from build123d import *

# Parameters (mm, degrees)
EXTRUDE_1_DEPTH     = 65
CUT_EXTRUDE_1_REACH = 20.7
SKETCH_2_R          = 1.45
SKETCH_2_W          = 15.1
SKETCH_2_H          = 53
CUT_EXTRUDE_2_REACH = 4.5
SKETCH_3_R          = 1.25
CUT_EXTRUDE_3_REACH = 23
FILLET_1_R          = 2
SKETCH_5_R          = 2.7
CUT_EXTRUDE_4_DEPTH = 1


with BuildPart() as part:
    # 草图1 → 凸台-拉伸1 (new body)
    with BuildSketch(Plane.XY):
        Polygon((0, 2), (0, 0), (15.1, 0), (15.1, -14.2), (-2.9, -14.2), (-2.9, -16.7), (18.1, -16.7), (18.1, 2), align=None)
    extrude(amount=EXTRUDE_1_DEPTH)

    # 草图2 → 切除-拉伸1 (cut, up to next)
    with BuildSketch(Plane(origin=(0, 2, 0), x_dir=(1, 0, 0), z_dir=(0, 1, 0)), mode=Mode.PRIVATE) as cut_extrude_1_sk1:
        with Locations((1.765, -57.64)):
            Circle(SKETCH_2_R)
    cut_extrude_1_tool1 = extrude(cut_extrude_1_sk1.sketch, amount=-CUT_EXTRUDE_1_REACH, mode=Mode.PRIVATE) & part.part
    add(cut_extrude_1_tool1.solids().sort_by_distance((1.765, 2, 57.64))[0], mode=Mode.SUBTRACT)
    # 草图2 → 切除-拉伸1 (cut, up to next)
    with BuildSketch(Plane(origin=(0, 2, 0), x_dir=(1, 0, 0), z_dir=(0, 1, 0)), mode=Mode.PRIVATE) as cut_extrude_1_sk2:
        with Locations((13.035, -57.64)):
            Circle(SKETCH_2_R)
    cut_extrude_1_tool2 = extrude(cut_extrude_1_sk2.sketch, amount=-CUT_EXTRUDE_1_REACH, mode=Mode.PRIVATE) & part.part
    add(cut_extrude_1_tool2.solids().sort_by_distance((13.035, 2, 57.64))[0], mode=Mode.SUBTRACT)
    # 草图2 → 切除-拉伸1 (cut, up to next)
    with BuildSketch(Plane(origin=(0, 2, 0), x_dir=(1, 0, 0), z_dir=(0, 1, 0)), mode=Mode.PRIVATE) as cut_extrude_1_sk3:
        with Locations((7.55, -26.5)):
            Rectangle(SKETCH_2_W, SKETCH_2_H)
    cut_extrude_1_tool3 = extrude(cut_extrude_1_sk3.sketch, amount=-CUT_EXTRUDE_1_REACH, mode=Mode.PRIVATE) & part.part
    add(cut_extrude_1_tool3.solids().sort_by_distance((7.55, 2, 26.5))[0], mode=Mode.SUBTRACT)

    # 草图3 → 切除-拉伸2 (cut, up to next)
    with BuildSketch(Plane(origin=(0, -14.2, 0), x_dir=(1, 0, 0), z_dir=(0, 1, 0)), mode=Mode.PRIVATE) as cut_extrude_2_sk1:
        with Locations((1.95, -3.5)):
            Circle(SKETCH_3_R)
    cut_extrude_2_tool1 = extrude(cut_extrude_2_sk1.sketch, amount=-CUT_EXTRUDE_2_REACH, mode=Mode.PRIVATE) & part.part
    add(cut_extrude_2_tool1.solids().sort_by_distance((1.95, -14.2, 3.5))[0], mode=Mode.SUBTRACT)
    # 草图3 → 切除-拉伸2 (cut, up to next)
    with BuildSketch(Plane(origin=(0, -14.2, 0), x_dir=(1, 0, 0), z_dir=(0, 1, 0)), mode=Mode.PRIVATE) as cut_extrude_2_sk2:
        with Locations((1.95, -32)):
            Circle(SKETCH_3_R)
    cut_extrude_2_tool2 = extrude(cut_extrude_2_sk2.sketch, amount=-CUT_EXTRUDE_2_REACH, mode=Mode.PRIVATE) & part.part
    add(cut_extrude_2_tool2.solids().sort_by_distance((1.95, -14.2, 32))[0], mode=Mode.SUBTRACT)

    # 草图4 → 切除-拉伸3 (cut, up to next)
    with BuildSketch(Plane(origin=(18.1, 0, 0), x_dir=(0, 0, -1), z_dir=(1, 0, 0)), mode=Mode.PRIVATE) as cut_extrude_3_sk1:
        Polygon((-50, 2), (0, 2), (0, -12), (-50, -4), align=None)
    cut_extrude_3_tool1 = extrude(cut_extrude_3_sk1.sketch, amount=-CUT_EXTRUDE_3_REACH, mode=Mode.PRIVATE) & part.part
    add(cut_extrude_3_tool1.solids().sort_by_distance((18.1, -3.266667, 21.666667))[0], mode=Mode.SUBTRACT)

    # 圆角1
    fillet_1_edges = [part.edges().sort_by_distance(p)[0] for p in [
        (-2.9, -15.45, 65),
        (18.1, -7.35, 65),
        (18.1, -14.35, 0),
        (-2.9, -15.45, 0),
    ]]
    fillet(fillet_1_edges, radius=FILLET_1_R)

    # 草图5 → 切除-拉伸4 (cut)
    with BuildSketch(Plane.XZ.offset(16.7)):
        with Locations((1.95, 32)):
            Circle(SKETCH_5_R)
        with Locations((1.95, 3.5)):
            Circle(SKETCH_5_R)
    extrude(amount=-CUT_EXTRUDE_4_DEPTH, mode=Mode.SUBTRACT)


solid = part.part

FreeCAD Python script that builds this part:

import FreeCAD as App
import Part
import Sketcher
from FreeCAD import Vector


def edges_at(feature, points):
    """Names of the edges that pass closest to the given points."""
    edges = feature.Shape.Edges
    near = lambda p: min(range(len(edges)), key=lambda i: edges[i].distToShape(Part.Vertex(*p))[0])
    return sorted({f"Edge{near(p) + 1}" for p in points})

doc = App.newDocument("Part")
body = doc.addObject("PartDesign::Body", "Body")

sketch1 = body.newObject("Sketcher::SketchObject", "Sketch")
sketch1.AttachmentSupport = (doc.getObject("XY_Plane"), [""])
sketch1.MapMode = "FlatFace"
sketch1.addGeometry(Part.LineSegment(Vector(0, 2, 0), Vector(0, 0, 0)), False)
sketch1.addGeometry(Part.LineSegment(Vector(0, 0, 0), Vector(15.1, 0, 0)), False)
sketch1.addGeometry(Part.LineSegment(Vector(15.1, 0, 0), Vector(15.1, -14.2, 0)), False)
sketch1.addGeometry(Part.LineSegment(Vector(15.1, -14.2, 0), Vector(-2.9, -14.2, 0)), False)
sketch1.addGeometry(Part.LineSegment(Vector(-2.9, -14.2, 0), Vector(-2.9, -16.7, 0)), False)
sketch1.addGeometry(Part.LineSegment(Vector(-2.9, -16.7, 0), Vector(18.1, -16.7, 0)), False)
sketch1.addGeometry(Part.LineSegment(Vector(18.1, -16.7, 0), Vector(18.1, 2, 0)), False)
sketch1.addGeometry(Part.LineSegment(Vector(18.1, 2, 0), Vector(0, 2, 0)), False)
sketch1.addConstraint(Sketcher.Constraint("Coincident", 0, 2, 1, 1))
sketch1.addConstraint(Sketcher.Constraint("Coincident", 1, 2, 2, 1))
sketch1.addConstraint(Sketcher.Constraint("Coincident", 2, 2, 3, 1))
sketch1.addConstraint(Sketcher.Constraint("Coincident", 3, 2, 4, 1))
sketch1.addConstraint(Sketcher.Constraint("Coincident", 4, 2, 5, 1))
sketch1.addConstraint(Sketcher.Constraint("Coincident", 5, 2, 6, 1))
sketch1.addConstraint(Sketcher.Constraint("Coincident", 6, 2, 7, 1))
sketch1.addConstraint(Sketcher.Constraint("Coincident", 7, 2, 0, 1))
sketch1.addConstraint(Sketcher.Constraint("Vertical", 0))
sketch1.addConstraint(Sketcher.Constraint("Horizontal", 1))
sketch1.addConstraint(Sketcher.Constraint("Vertical", 2))
sketch1.addConstraint(Sketcher.Constraint("Horizontal", 3))
sketch1.addConstraint(Sketcher.Constraint("Vertical", 4))
sketch1.addConstraint(Sketcher.Constraint("Horizontal", 5))
sketch1.addConstraint(Sketcher.Constraint("Vertical", 6))
sketch1.addConstraint(Sketcher.Constraint("Horizontal", 7))
sketch1.addConstraint(Sketcher.Constraint("Coincident", 0, 2, -1, 1))
sketch1.addConstraint(Sketcher.Constraint("DistanceX", 3, 2, 3, 1, 18.0))
sketch1.addConstraint(Sketcher.Constraint("DistanceX", 5, 1, 5, 2, 21.0))
sketch1.addConstraint(Sketcher.Constraint("DistanceY", 0, 2, 0, 1, 2.0))
sketch1.addConstraint(Sketcher.Constraint("DistanceX", 1, 1, 1, 2, 15.1))
sketch1.addConstraint(Sketcher.Constraint("DistanceY", 2, 2, 2, 1, 14.2))
sketch1.addConstraint(Sketcher.Constraint("DistanceY", 4, 2, 4, 1, 2.5))
pad1 = body.newObject("PartDesign::Pad", "Pad")
pad1.Profile = sketch1
pad1.Length = 65

sketch2 = body.newObject("Sketcher::SketchObject", "Sketch001")
sketch2.AttachmentSupport = (doc.getObject("XZ_Plane"), [""])
sketch2.MapMode = "FlatFace"
sketch2.AttachmentOffset = App.Placement(Vector(0, 0, -2), App.Rotation())
sketch2.addGeometry(Part.Circle(Vector(1.8, 57.6, 0), Vector(0, 0, 1), 1.4), False)
sketch2.addConstraint(Sketcher.Constraint("Diameter", 0, 2.9))
sketch2.addConstraint(Sketcher.Constraint("DistanceY", -1, 1, 0, 3, 57.64))
sketch2.addConstraint(Sketcher.Constraint("DistanceX", -1, 1, 0, 3, 1.765))
pocket1 = body.newObject("PartDesign::Pocket", "Pocket")
pocket1.Profile = sketch2
pocket1.Type = "UpToFirst"
pocket1.Reversed = True

sketch3 = body.newObject("Sketcher::SketchObject", "Sketch002")
sketch3.AttachmentSupport = (doc.getObject("XZ_Plane"), [""])
sketch3.MapMode = "FlatFace"
sketch3.AttachmentOffset = App.Placement(Vector(0, 0, -2), App.Rotation())
sketch3.addGeometry(Part.Circle(Vector(13, 57.6, 0), Vector(0, 0, 1), 1.4), False)
sketch3.addConstraint(Sketcher.Constraint("Diameter", 0, 2.9))
sketch3.addConstraint(Sketcher.Constraint("DistanceY", -1, 1, 0, 3, 57.64))
sketch3.addConstraint(Sketcher.Constraint("DistanceX", -1, 1, 0, 3, 13.035))
pocket2 = body.newObject("PartDesign::Pocket", "Pocket001")
pocket2.Profile = sketch3
pocket2.Type = "UpToFirst"
pocket2.Reversed = True

sketch4 = body.newObject("Sketcher::SketchObject", "Sketch003")
sketch4.AttachmentSupport = (doc.getObject("XZ_Plane"), [""])
sketch4.MapMode = "FlatFace"
sketch4.AttachmentOffset = App.Placement(Vector(0, 0, -2), App.Rotation())
sketch4.addGeometry(Part.LineSegment(Vector(0, 0, 0), Vector(0, 53, 0)), False)
sketch4.addGeometry(Part.LineSegment(Vector(0, 53, 0), Vector(15, 53, 0)), False)
sketch4.addGeometry(Part.LineSegment(Vector(15, 53, 0), Vector(15, 0, 0)), False)
sketch4.addGeometry(Part.LineSegment(Vector(15, 0, 0), Vector(0, 0, 0)), False)
sketch4.addConstraint(Sketcher.Constraint("Coincident", 0, 2, 1, 1))
sketch4.addConstraint(Sketcher.Constraint("Coincident", 1, 2, 2, 1))
sketch4.addConstraint(Sketcher.Constraint("Coincident", 2, 2, 3, 1))
sketch4.addConstraint(Sketcher.Constraint("Coincident", 3, 2, 0, 1))
sketch4.addConstraint(Sketcher.Constraint("Vertical", 0))
sketch4.addConstraint(Sketcher.Constraint("Horizontal", 1))
sketch4.addConstraint(Sketcher.Constraint("Vertical", 2))
sketch4.addConstraint(Sketcher.Constraint("Horizontal", 3))
sketch4.addConstraint(Sketcher.Constraint("Coincident", 3, 2, -1, 1))
sketch4.addConstraint(Sketcher.Constraint("DistanceY", 0, 1, 0, 2, 53.0))
sketch4.addConstraint(Sketcher.Constraint("DistanceX", 1, 1, 1, 2, 15.1))
pocket3 = body.newObject("PartDesign::Pocket", "Pocket002")
pocket3.Profile = sketch4
pocket3.Type = "UpToFirst"
pocket3.Reversed = True

sketch5 = body.newObject("Sketcher::SketchObject", "Sketch004")
sketch5.AttachmentSupport = (doc.getObject("XZ_Plane"), [""])
sketch5.MapMode = "FlatFace"
sketch5.AttachmentOffset = App.Placement(Vector(0, 0, 14.2), App.Rotation())
sketch5.addGeometry(Part.Circle(Vector(1.9, 3.5, 0), Vector(0, 0, 1), 1.2), False)
sketch5.addConstraint(Sketcher.Constraint("Diameter", 0, 2.5))
sketch5.addConstraint(Sketcher.Constraint("DistanceY", -1, 1, 0, 3, 3.5))
sketch5.addConstraint(Sketcher.Constraint("DistanceX", -1, 1, 0, 3, 1.95))
pocket4 = body.newObject("PartDesign::Pocket", "Pocket003")
pocket4.Profile = sketch5
pocket4.Type = "UpToFirst"
pocket4.Reversed = True

sketch6 = body.newObject("Sketcher::SketchObject", "Sketch005")
sketch6.AttachmentSupport = (doc.getObject("XZ_Plane"), [""])
sketch6.MapMode = "FlatFace"
sketch6.AttachmentOffset = App.Placement(Vector(0, 0, 14.2), App.Rotation())
sketch6.addGeometry(Part.Circle(Vector(1.9, 32, 0), Vector(0, 0, 1), 1.2), False)
sketch6.addConstraint(Sketcher.Constraint("Diameter", 0, 2.5))
sketch6.addConstraint(Sketcher.Constraint("DistanceY", -1, 1, 0, 3, 32.0))
sketch6.addConstraint(Sketcher.Constraint("DistanceX", -1, 1, 0, 3, 1.95))
pocket5 = body.newObject("PartDesign::Pocket", "Pocket004")
pocket5.Profile = sketch6
pocket5.Type = "UpToFirst"
pocket5.Reversed = True

sketch7 = body.newObject("Sketcher::SketchObject", "Sketch006")
sketch7.AttachmentSupport = (doc.getObject("YZ_Plane"), [""])
sketch7.MapMode = "FlatFace"
sketch7.AttachmentOffset = App.Placement(Vector(0, 0, 18.1), App.Rotation())
sketch7.addGeometry(Part.LineSegment(Vector(2, 0, 0), Vector(2, 50, 0)), False)
sketch7.addGeometry(Part.LineSegment(Vector(2, 50, 0), Vector(-4, 50, 0)), False)
sketch7.addGeometry(Part.LineSegment(Vector(-4, 50, 0), Vector(-12, 0, 0)), False)
sketch7.addGeometry(Part.LineSegment(Vector(-12, 0, 0), Vector(2, 0, 0)), False)
sketch7.addConstraint(Sketcher.Constraint("Coincident", 0, 2, 1, 1))
sketch7.addConstraint(Sketcher.Constraint("Coincident", 1, 2, 2, 1))
sketch7.addConstraint(Sketcher.Constraint("Coincident", 2, 2, 3, 1))
sketch7.addConstraint(Sketcher.Constraint("Coincident", 3, 2, 0, 1))
sketch7.addConstraint(Sketcher.Constraint("Vertical", 0))
sketch7.addConstraint(Sketcher.Constraint("Horizontal", 1))
sketch7.addConstraint(Sketcher.Constraint("Horizontal", 3))
sketch7.addConstraint(Sketcher.Constraint("PointOnObject", 2, 2, -1))
sketch7.addConstraint(Sketcher.Constraint("DistanceX", 1, 2, 1, 1, 6.0))
sketch7.addConstraint(Sketcher.Constraint("DistanceX", 3, 1, 3, 2, 14.0))
sketch7.addConstraint(Sketcher.Constraint("DistanceY", 0, 1, 0, 2, 50.0))
sketch7.addConstraint(Sketcher.Constraint("DistanceX", -1, 1, 0, 2, 2.0))
pocket6 = body.newObject("PartDesign::Pocket", "Pocket005")
pocket6.Profile = sketch7
pocket6.Type = "UpToFirst"
doc.recompute()

fillet = body.newObject("PartDesign::Fillet", "Fillet")
fillet.Base = (pocket6, edges_at(pocket6, [
    (-2.9, -15.45, 65),
    (18.1, -7.35, 65),
    (18.1, -14.35, 0),
    (-2.9, -15.45, 0),
]))
fillet.Radius = 2

sketch8 = body.newObject("Sketcher::SketchObject", "Sketch007")
sketch8.AttachmentSupport = (doc.getObject("XZ_Plane"), [""])
sketch8.MapMode = "FlatFace"
sketch8.AttachmentOffset = App.Placement(Vector(0, 0, 16.7), App.Rotation())
sketch8.addGeometry(Part.Circle(Vector(1.9, 32, 0), Vector(0, 0, 1), 2.7), False)
sketch8.addGeometry(Part.Circle(Vector(1.9, 3.5, 0), Vector(0, 0, 1), 2.7), False)
sketch8.addConstraint(Sketcher.Constraint("Equal", 0, 1))
sketch8.addConstraint(Sketcher.Constraint("Vertical", 0, 3, 1, 3))
sketch8.addConstraint(Sketcher.Constraint("Diameter", 0, 5.4))
sketch8.addConstraint(Sketcher.Constraint("DistanceY", -1, 1, 0, 3, 32.0))
sketch8.addConstraint(Sketcher.Constraint("DistanceY", -1, 1, 1, 3, 3.5))
sketch8.addConstraint(Sketcher.Constraint("DistanceX", -1, 1, 0, 3, 1.95))
pocket7 = body.newObject("PartDesign::Pocket", "Pocket006")
pocket7.Profile = sketch8
pocket7.Length = 1

doc.recompute()
